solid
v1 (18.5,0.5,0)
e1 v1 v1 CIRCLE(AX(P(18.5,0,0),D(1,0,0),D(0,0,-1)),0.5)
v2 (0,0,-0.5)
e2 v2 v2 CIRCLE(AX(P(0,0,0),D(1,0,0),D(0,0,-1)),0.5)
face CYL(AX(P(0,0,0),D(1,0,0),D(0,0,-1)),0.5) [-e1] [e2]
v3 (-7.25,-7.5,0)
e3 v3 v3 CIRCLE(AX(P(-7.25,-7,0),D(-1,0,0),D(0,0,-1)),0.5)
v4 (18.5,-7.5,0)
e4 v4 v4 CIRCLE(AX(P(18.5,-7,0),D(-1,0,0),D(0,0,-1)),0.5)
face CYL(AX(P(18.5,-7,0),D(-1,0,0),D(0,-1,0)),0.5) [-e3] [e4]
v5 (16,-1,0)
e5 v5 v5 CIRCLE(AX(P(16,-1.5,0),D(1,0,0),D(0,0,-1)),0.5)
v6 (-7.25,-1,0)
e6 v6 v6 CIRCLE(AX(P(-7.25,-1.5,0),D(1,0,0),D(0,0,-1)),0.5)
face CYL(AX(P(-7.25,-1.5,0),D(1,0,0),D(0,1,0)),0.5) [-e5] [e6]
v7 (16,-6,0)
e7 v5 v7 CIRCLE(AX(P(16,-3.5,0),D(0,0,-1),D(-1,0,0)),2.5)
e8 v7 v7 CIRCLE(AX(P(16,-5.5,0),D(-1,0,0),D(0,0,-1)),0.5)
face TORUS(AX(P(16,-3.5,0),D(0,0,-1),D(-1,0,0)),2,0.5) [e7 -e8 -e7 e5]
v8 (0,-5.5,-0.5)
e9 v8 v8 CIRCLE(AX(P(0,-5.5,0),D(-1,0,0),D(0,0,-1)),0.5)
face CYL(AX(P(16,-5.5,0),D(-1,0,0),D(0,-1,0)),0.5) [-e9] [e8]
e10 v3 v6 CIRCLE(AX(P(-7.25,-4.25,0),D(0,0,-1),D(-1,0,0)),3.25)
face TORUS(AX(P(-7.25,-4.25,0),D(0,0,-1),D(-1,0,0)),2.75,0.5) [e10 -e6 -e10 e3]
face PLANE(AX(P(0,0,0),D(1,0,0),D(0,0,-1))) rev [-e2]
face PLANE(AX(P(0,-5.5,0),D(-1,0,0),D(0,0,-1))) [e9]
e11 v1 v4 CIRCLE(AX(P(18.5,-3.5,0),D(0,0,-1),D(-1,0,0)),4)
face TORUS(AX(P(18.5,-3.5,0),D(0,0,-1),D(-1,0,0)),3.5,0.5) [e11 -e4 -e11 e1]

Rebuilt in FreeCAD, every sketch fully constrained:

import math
import FreeCAD as App
import Part
import Sketcher
from FreeCAD import Vector

doc = App.newDocument("Part")
body = doc.addObject("PartDesign::Body", "Body")

sketch1 = body.newObject("Sketcher::SketchObject", "Sketch")
sketch1.AttachmentSupport = (doc.getObject("YZ_Plane"), [""])
sketch1.MapMode = "FlatFace"
sketch1.addGeometry(Part.Circle(Vector(0, 0, 0), Vector(0, 0, 1), 0.5), False)
sketch1.addConstraint([
    Sketcher.Constraint("Coincident", 0, 3, -1, 1),
    Sketcher.Constraint("Diameter", 0, 1.0),
])

sketch2 = body.newObject("Sketcher::SketchObject", "Sketch001")
sketch2.AttachmentSupport = (doc.getObject("XY_Plane"), [""])
sketch2.MapMode = "FlatFace"
sketch2.addGeometry([
    Part.LineSegment(Vector(0, 0, 0), Vector(18.5, 0, 0)),
    Part.ArcOfCircle(Part.Circle(Vector(18.5, -3.5, 0), Vector(0, 0, 1), 3.5), math.radians(-90), math.radians(90)),
    Part.LineSegment(Vector(18.5, -7, 0), Vector(-7.2, -7, 0)),
    Part.ArcOfCircle(Part.Circle(Vector(-7.2, -4.2, 0), Vector(0, 0, 1), 2.8), math.radians(90), math.radians(270)),
    Part.LineSegment(Vector(-7.2, -1.5, 0), Vector(16, -1.5, 0)),
    Part.ArcOfCircle(Part.Circle(Vector(16, -3.5, 0), Vector(0, 0, 1), 2), math.radians(-90), math.radians(90)),
    Part.LineSegment(Vector(16, -5.5, 0), Vector(0, -5.5, 0)),
], False)
sketch2.addConstraint([
    Sketcher.Constraint("Tangent", 0, 2, 1, 2),
    Sketcher.Constraint("Tangent", 1, 1, 2, 1),
    Sketcher.Constraint("Tangent", 2, 2, 3, 2),
    Sketcher.Constraint("Tangent", 3, 1, 4, 1),
    Sketcher.Constraint("Tangent", 4, 2, 5, 2),
    Sketcher.Constraint("Tangent", 5, 1, 6, 1),
    Sketcher.Constraint("Horizontal", 0),
    Sketcher.Constraint("Horizontal", 2),
    Sketcher.Constraint("Horizontal", 4),
    Sketcher.Constraint("Horizontal", 6),
    Sketcher.Constraint("Coincident", 0, 1, -1, 1),
    Sketcher.Constraint("PointOnObject", 6, 2, -2),
    Sketcher.Constraint("Horizontal", 1, 3, 5, 3),
    Sketcher.Constraint("Radius", 5, 2.0),
    Sketcher.Constraint("Radius", 1, 3.5),
    Sketcher.Constraint("DistanceX", 6, 2, 6, 1, 16.0),
    Sketcher.Constraint("DistanceX", 0, 1, 0, 2, 18.5),
    Sketcher.Constraint("DistanceX", 2, 2, 2, 1, 25.75),
])
doc.recompute()

additivepipe = body.newObject("PartDesign::AdditivePipe", "AdditivePipe")
additivepipe.Profile = sketch1
additivepipe.Spine = (sketch2, ["Edge1", "Edge2", "Edge3", "Edge4", "Edge5", "Edge6", "Edge7"])

doc.recompute()
